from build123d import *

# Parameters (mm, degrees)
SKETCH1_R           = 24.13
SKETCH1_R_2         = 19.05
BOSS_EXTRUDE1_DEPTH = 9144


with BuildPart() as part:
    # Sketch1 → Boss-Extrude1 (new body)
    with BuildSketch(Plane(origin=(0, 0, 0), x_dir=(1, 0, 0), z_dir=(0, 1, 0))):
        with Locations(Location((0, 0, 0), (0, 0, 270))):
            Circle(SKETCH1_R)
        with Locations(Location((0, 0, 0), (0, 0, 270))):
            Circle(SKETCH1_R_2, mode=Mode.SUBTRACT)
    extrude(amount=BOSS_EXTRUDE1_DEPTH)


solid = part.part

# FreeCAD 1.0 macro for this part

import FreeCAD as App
import Part
import Sketcher
Q = App.Units.Quantity

doc = App.newDocument("Part")
body = doc.addObject("PartDesign::Body", "Body")

# Sketch on XZ plane
sketch1 = doc.addObject("Sketcher::SketchObject", "Sketch")
body.addObject(sketch1)
sketch1.AttachmentSupport = (doc.XZ_Plane, [""])
sketch1.MapMode = "FlatFace"
sketch1.addGeometry(Part.Circle(App.Vector(0, 0, 0), App.Vector(0, 0, 1), 24.13), False)
sketch1.addGeometry(Part.Circle(App.Vector(0, 0, 0), App.Vector(0, 0, 1), 19.05), False)
sketch1.addConstraint(Sketcher.Constraint("Coincident", 0, 3, -1, 1))
sketch1.addConstraint(Sketcher.Constraint("Coincident", 1, 3, -1, 1))
sketch1.addConstraint(Sketcher.Constraint("Diameter", 0, Q("1.9 in")))
sketch1.addConstraint(Sketcher.Constraint("Diameter", 1, Q("1.5 in")))
pad1 = doc.addObject("PartDesign::Pad", "Pad")
body.addObject(pad1)
pad1.Profile = sketch1
pad1.Length = Q("360 in")
pad1.Reversed = True

doc.recompute()
